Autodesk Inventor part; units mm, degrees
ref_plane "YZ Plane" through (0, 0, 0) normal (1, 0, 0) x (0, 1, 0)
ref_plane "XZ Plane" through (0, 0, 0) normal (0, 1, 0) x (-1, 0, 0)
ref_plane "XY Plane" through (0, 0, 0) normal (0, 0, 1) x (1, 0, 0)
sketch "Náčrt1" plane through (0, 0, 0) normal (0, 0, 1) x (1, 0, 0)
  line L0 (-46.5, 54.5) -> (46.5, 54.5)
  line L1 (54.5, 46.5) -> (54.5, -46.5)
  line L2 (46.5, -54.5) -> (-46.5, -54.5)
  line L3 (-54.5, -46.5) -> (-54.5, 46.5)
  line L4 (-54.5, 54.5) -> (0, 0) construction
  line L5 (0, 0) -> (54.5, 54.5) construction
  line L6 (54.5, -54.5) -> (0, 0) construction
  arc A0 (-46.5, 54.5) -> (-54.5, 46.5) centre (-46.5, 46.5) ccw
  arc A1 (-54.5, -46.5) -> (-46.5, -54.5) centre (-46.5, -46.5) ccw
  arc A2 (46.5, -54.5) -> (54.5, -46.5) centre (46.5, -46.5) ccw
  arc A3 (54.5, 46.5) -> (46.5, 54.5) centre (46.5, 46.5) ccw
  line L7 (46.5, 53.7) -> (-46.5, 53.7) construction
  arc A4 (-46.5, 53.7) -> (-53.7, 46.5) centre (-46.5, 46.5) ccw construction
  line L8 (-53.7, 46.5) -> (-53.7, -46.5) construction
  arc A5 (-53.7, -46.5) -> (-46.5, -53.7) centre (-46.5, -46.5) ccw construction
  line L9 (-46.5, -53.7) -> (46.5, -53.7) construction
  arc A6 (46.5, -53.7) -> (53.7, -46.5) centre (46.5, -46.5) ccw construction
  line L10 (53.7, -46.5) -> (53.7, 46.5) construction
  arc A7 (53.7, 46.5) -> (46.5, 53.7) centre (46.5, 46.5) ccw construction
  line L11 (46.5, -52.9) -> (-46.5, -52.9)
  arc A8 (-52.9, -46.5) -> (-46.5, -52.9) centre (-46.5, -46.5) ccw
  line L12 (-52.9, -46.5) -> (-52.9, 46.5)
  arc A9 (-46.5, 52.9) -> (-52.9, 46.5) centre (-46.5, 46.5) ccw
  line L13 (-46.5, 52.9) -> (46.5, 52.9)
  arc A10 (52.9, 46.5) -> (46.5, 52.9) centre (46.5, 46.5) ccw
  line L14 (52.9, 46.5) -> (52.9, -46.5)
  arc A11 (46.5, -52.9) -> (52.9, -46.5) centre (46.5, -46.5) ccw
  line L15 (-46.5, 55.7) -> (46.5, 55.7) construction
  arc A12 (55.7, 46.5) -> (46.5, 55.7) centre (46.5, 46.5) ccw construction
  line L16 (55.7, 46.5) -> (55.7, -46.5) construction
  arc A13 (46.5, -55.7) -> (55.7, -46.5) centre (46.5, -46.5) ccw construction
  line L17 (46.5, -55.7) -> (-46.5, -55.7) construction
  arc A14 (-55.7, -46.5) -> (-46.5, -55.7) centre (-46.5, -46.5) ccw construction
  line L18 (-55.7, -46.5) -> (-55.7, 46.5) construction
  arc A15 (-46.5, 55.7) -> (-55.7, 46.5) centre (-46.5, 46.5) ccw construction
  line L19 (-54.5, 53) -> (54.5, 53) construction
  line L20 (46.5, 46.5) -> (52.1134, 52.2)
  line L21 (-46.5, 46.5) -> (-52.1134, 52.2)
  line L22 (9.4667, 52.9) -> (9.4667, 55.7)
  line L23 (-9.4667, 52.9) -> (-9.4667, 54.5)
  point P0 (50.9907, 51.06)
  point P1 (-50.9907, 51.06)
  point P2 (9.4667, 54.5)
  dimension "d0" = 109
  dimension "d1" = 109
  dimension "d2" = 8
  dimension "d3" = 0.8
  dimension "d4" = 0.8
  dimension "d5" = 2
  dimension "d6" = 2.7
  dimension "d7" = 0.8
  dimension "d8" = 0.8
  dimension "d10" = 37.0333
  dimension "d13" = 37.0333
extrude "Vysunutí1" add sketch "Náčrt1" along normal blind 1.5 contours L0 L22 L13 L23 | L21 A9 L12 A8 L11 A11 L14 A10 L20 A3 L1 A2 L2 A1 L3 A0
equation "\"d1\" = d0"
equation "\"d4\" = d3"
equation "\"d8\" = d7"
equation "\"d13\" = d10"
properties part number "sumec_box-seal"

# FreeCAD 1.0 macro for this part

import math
import FreeCAD as App
import Part
import Sketcher

doc = App.newDocument("Part")
body = doc.addObject("PartDesign::Body", "Body")
body.AllowCompound = True

# Sketch on XY plane
sketch1 = body.newObject("Sketcher::SketchObject", "Sketch")
sketch1.AttachmentSupport = (doc.getObject("XY_Plane"), [""])
sketch1.MapMode = "FlatFace"
sketch1.addGeometry(Part.LineSegment(App.Vector(9.5, 54.5, 0), App.Vector(-9.5, 54.5, 0)), False)
sketch1.addGeometry(Part.LineSegment(App.Vector(-9.5, 54.5, 0), App.Vector(-9.5, 52.9, 0)), False)
sketch1.addGeometry(Part.LineSegment(App.Vector(-9.5, 52.9, 0), App.Vector(9.5, 52.9, 0)), False)
sketch1.addGeometry(Part.LineSegment(App.Vector(9.5, 52.9, 0), App.Vector(9.5, 54.5, 0)), False)
sketch1.addGeometry(Part.LineSegment(App.Vector(-51, 51.1, 0), App.Vector(-52.1, 52.2, 0)), False)
sketch1.addGeometry(Part.ArcOfCircle(Part.Circle(App.Vector(-46.5, 46.5, 0), App.Vector(0, 0, 1), 8), math.radians(135), math.radians(180)), False)
sketch1.addGeometry(Part.LineSegment(App.Vector(-54.5, 46.5, 0), App.Vector(-54.5, -46.5, 0)), False)
sketch1.addGeometry(Part.ArcOfCircle(Part.Circle(App.Vector(-46.5, -46.5, 0), App.Vector(0, 0, 1), 8), math.radians(180), math.radians(270)), False)
sketch1.addGeometry(Part.LineSegment(App.Vector(-46.5, -54.5, 0), App.Vector(46.5, -54.5, 0)), False)
sketch1.addGeometry(Part.ArcOfCircle(Part.Circle(App.Vector(46.5, -46.5, 0), App.Vector(0, 0, 1), 8), math.radians(-90), math.radians(0)), False)
sketch1.addGeometry(Part.LineSegment(App.Vector(54.5, -46.5, 0), App.Vector(54.5, 46.5, 0)), False)
sketch1.addGeometry(Part.ArcOfCircle(Part.Circle(App.Vector(46.5, 46.5, 0), App.Vector(0, 0, 1), 8), math.radians(0), math.radians(45)), False)
sketch1.addGeometry(Part.LineSegment(App.Vector(52.1, 52.2, 0), App.Vector(51, 51.1, 0)), False)
sketch1.addGeometry(Part.ArcOfCircle(Part.Circle(App.Vector(46.5, 46.5, 0), App.Vector(0, 0, 1), 6.4), math.radians(0), math.radians(45)), False)
sketch1.addGeometry(Part.LineSegment(App.Vector(52.9, 46.5, 0), App.Vector(52.9, -46.5, 0)), False)
sketch1.addGeometry(Part.ArcOfCircle(Part.Circle(App.Vector(46.5, -46.5, 0), App.Vector(0, 0, 1), 6.4), math.radians(-90), math.radians(0)), False)
sketch1.addGeometry(Part.LineSegment(App.Vector(46.5, -52.9, 0), App.Vector(-46.5, -52.9, 0)), False)
sketch1.addGeometry(Part.ArcOfCircle(Part.Circle(App.Vector(-46.5, -46.5, 0), App.Vector(0, 0, 1), 6.4), math.radians(180), math.radians(270)), False)
sketch1.addGeometry(Part.LineSegment(App.Vector(-52.9, -46.5, 0), App.Vector(-52.9, 46.5, 0)), False)
sketch1.addGeometry(Part.ArcOfCircle(Part.Circle(App.Vector(-46.5, 46.5, 0), App.Vector(0, 0, 1), 6.4), math.radians(135), math.radians(180)), False)
sketch1.addConstraint(Sketcher.Constraint("Coincident", 0, 2, 1, 1))
sketch1.addConstraint(Sketcher.Constraint("Coincident", 1, 2, 2, 1))
sketch1.addConstraint(Sketcher.Constraint("Coincident", 2, 2, 3, 1))
sketch1.addConstraint(Sketcher.Constraint("Coincident", 3, 2, 0, 1))
sketch1.addConstraint(Sketcher.Constraint("Coincident", 4, 2, 5, 1))
sketch1.addConstraint(Sketcher.Constraint("Tangent", 5, 2, 6, 1))
sketch1.addConstraint(Sketcher.Constraint("Tangent", 6, 2, 7, 1))
sketch1.addConstraint(Sketcher.Constraint("Tangent", 7, 2, 8, 1))
sketch1.addConstraint(Sketcher.Constraint("Tangent", 8, 2, 9, 1))
sketch1.addConstraint(Sketcher.Constraint("Tangent", 9, 2, 10, 1))
sketch1.addConstraint(Sketcher.Constraint("Tangent", 10, 2, 11, 1))
sketch1.addConstraint(Sketcher.Constraint("Coincident", 11, 2, 12, 1))
sketch1.addConstraint(Sketcher.Constraint("Coincident", 12, 2, 13, 2))
sketch1.addConstraint(Sketcher.Constraint("Tangent", 13, 1, 14, 1))
sketch1.addConstraint(Sketcher.Constraint("Tangent", 14, 2, 15, 2))
sketch1.addConstraint(Sketcher.Constraint("Tangent", 15, 1, 16, 1))
sketch1.addConstraint(Sketcher.Constraint("Tangent", 16, 2, 17, 2))
sketch1.addConstraint(Sketcher.Constraint("Tangent", 17, 1, 18, 1))
sketch1.addConstraint(Sketcher.Constraint("Tangent", 18, 2, 19, 2))
sketch1.addConstraint(Sketcher.Constraint("Coincident", 19, 1, 4, 1))
sketch1.addConstraint(Sketcher.Constraint("Horizontal", 0))
sketch1.addConstraint(Sketcher.Constraint("Vertical", 1))
sketch1.addConstraint(Sketcher.Constraint("Horizontal", 2))
sketch1.addConstraint(Sketcher.Constraint("Vertical", 3))
sketch1.addConstraint(Sketcher.Constraint("Vertical", 6))
sketch1.addConstraint(Sketcher.Constraint("Horizontal", 8))
sketch1.addConstraint(Sketcher.Constraint("Vertical", 10))
sketch1.addConstraint(Sketcher.Constraint("Vertical", 14))
sketch1.addConstraint(Sketcher.Constraint("Horizontal", 16))
sketch1.addConstraint(Sketcher.Constraint("Vertical", 18))
sketch1.addConstraint(Sketcher.Constraint("Coincident", 13, 3, 11, 3))
sketch1.addConstraint(Sketcher.Constraint("Coincident", 15, 3, 9, 3))
sketch1.addConstraint(Sketcher.Constraint("Coincident", 17, 3, 7, 3))
sketch1.addConstraint(Sketcher.Constraint("Coincident", 19, 3, 5, 3))
sketch1.addConstraint(Sketcher.Constraint("Equal", 5, 7))
sketch1.addConstraint(Sketcher.Constraint("Equal", 7, 9))
sketch1.addConstraint(Sketcher.Constraint("Equal", 9, 11))
sketch1.addConstraint(Sketcher.Constraint("Symmetric", 5, 3, 9, 3, -1, 1))
sketch1.addConstraint(Sketcher.Constraint("Symmetric", 4, 2, 11, 2, -2))
sketch1.addConstraint(Sketcher.Constraint("Horizontal", 12, 2, 19, 1))
sketch1.addConstraint(Sketcher.Constraint("Equal", 16, 6))
sketch1.addConstraint(Sketcher.Constraint("Radius", 5, 8.0))
sketch1.addConstraint(Sketcher.Constraint("DistanceY", 5, 3, 0, 2, 8.0))
sketch1.addConstraint(Sketcher.Constraint("Radius", 13, 6.4))
sketch1.addConstraint(Sketcher.Constraint("DistanceX", 8, 1, 8, 2, 93.0))
sketch1.addConstraint(Sketcher.Constraint("DistanceY", 1, 2, 1, 1, 1.6))
sketch1.addConstraint(Sketcher.Constraint("DistanceY", -1, 1, 4, 2, 52.2))
sketch1.addConstraint(Sketcher.Constraint("DistanceX", 5, 3, 0, 2, 37.0333))
sketch1.addConstraint(Sketcher.Constraint("DistanceX", 2, 2, 11, 3, 37.0333))
sketch1.addConstraint(Sketcher.Constraint("DistanceY", -1, 1, 12, 2, 51.06))
pad1 = body.newObject("PartDesign::Pad", "Pad")
pad1.Profile = sketch1
pad1.Length = 1.5

doc.recompute()
